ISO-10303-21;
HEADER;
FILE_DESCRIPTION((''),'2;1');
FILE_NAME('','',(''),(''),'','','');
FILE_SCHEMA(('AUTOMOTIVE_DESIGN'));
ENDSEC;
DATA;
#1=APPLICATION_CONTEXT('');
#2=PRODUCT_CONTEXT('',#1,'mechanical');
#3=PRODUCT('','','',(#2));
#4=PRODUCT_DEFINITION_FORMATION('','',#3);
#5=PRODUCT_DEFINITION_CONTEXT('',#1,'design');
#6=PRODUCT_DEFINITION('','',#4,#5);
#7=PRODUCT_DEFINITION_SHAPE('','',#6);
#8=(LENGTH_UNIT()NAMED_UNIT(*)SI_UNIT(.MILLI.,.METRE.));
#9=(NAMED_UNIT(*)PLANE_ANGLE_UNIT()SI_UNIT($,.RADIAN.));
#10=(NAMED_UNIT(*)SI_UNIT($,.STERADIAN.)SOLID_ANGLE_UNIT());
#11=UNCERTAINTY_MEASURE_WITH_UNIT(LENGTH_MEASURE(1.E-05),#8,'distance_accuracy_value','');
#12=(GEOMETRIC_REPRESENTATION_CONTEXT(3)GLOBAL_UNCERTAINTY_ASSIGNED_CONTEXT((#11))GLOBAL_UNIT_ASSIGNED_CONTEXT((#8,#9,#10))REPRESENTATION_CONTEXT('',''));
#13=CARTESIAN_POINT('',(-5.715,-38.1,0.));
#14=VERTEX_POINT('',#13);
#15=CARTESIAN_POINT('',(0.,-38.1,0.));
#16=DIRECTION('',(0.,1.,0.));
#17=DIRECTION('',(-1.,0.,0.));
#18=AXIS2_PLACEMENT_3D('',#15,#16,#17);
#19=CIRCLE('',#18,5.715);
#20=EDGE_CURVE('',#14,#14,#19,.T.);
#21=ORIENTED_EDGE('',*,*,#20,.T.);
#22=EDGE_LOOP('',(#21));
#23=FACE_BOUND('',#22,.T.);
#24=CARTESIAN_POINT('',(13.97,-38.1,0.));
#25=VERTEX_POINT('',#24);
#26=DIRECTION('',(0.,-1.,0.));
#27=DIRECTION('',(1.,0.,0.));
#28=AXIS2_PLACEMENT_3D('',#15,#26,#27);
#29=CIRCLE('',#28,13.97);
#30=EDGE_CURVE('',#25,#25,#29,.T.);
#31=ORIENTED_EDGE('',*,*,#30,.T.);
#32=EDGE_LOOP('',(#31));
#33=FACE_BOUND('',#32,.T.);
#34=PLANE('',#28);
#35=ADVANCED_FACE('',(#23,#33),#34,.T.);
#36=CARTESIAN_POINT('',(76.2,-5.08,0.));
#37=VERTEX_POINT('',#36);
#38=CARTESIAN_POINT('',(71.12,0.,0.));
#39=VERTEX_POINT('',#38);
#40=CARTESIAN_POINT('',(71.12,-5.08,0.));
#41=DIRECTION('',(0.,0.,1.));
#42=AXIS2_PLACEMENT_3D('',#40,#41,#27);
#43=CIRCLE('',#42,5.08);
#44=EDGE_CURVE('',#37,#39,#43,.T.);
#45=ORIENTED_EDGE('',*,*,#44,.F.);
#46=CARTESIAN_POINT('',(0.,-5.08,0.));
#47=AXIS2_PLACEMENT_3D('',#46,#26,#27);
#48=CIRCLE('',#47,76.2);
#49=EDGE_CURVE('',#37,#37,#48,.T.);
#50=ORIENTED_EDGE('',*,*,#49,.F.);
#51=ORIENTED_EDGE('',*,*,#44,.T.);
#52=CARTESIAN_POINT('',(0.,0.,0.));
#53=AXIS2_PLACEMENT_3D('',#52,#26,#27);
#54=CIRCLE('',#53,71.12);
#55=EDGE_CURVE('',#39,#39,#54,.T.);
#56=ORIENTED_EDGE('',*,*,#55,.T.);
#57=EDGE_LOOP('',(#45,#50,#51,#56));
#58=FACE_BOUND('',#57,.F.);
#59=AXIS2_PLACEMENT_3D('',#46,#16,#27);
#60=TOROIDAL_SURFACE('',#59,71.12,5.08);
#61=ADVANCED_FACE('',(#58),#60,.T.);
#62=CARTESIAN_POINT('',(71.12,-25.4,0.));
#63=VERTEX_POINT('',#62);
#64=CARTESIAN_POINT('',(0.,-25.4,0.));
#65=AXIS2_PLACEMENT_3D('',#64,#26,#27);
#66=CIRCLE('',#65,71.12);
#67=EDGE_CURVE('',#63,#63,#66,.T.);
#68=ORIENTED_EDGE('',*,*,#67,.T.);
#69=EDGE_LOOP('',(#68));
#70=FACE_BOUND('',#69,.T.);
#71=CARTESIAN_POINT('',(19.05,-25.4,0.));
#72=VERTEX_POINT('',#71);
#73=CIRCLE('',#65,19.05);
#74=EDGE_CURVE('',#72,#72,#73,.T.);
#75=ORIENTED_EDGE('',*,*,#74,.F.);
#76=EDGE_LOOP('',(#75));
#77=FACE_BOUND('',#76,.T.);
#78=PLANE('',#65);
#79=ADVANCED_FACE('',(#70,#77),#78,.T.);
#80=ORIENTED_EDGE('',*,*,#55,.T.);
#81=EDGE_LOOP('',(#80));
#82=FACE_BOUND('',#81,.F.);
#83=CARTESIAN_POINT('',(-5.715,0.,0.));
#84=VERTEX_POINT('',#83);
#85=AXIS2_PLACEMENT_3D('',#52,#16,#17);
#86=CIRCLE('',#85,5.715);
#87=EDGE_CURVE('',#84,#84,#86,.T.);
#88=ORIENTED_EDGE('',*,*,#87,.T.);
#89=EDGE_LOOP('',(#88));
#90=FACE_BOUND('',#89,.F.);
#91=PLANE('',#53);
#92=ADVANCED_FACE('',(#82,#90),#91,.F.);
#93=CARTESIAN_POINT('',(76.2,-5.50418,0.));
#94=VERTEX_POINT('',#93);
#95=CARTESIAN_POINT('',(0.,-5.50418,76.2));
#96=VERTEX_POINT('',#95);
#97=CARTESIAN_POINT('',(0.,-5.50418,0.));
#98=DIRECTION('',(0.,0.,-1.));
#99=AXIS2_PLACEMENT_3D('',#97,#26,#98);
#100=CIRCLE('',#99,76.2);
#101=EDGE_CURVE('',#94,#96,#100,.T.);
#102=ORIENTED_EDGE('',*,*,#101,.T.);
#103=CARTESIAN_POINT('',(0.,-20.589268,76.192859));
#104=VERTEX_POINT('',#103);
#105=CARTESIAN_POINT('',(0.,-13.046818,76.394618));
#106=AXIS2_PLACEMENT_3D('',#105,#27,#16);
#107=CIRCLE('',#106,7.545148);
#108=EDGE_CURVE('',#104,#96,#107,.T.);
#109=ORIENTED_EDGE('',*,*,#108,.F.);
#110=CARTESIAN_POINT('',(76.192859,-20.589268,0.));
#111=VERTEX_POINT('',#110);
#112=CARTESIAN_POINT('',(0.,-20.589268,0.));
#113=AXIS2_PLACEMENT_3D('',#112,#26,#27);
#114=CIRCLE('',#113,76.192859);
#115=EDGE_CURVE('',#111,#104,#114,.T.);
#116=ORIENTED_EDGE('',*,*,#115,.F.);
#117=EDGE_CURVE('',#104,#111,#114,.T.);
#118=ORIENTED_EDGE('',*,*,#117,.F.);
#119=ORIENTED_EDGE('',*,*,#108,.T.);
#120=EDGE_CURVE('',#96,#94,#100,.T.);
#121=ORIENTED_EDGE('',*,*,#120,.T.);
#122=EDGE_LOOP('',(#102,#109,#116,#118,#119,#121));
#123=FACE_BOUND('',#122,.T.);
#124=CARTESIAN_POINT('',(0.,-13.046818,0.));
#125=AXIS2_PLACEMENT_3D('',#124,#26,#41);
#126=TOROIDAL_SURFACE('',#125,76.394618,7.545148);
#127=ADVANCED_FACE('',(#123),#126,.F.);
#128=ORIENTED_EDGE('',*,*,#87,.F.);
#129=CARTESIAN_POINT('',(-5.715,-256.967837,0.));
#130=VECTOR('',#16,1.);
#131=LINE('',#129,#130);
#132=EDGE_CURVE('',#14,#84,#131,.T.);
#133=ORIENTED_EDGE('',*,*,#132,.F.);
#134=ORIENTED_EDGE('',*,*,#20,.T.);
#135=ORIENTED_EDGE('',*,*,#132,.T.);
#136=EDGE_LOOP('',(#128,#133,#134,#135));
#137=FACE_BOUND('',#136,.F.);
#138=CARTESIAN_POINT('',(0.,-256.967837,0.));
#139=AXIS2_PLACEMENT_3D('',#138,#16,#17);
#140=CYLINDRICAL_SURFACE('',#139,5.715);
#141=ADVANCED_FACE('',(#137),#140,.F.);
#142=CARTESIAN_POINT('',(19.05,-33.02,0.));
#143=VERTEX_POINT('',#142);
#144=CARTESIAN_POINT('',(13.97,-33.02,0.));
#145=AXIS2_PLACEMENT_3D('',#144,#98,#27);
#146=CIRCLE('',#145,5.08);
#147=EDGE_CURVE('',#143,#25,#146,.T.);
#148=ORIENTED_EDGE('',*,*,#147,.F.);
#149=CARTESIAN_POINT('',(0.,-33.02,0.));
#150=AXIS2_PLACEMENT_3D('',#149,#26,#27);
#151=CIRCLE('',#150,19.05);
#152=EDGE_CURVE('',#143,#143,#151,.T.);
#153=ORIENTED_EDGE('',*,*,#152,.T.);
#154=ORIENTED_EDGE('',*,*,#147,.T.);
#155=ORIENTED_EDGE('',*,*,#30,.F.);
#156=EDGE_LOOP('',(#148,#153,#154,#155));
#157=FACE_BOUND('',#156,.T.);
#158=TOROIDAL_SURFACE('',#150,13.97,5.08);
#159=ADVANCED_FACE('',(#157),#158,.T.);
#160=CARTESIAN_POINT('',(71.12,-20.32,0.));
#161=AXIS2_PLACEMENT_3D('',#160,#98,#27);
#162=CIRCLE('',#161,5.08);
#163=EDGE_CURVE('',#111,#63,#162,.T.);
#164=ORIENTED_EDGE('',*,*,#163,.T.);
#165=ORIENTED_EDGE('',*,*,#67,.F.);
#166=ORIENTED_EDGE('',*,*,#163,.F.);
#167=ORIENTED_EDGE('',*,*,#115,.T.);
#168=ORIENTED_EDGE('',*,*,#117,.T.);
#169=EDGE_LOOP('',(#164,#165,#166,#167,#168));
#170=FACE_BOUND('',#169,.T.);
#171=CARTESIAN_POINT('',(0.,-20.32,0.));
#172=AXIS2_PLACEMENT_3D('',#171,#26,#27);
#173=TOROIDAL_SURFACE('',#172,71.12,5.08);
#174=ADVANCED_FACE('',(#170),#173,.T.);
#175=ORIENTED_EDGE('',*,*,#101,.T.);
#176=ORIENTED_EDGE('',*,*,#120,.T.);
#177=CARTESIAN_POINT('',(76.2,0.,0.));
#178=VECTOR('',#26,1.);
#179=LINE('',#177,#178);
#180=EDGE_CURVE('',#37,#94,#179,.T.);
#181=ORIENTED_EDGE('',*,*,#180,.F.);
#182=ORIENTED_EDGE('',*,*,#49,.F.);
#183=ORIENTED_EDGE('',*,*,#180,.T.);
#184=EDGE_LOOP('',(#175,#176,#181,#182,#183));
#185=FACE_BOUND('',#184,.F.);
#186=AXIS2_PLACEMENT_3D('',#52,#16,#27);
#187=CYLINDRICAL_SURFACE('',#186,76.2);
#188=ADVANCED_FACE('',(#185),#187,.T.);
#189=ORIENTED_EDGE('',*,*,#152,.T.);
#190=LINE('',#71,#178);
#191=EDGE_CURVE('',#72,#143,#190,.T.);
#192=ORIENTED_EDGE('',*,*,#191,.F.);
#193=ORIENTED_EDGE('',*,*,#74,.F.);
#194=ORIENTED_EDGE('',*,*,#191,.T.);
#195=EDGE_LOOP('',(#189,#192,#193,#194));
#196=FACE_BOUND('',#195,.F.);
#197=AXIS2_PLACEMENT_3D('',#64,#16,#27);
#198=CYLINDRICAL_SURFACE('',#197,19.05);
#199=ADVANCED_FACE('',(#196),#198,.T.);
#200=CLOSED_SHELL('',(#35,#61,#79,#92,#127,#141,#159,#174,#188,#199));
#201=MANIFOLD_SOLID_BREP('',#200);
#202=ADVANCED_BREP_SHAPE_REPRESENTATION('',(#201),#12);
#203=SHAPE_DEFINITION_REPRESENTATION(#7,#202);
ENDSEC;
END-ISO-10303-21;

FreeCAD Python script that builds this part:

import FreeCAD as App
import Part
import Sketcher

V = App.Vector
Q = App.Units.Quantity


def edges_at(feature, points):
    """Names of the edges that pass closest to the given points."""
    edges = feature.Shape.Edges
    near = lambda p: min(range(len(edges)), key=lambda i: edges[i].distToShape(Part.Vertex(*p))[0])
    return sorted({f"Edge{near(p) + 1}" for p in points})

doc = App.newDocument("Part")
params = doc.addObject("Spreadsheet::Sheet", "Params")
for row, (alias, value) in enumerate([
    ("sketch1_diameter", "6 in"),
    ("pad1_length", "1 in"),
    ("sketch2_diameter", "1.5 in"),
    ("pad2_length", "0.5 in"),
    ("sketch3_diameter", "0.45 in"),
    ("hole_diameter", "0.45 in"),
    ("fillet_radius", "0.2 in"),
    ("groove_angle", "360 deg"),
], start=1):
    params.set(f"A{row}", alias)
    params.set(f"B{row}", "=" + value)
    params.setAlias(f"B{row}", alias)

body = doc.addObject("PartDesign::Body", "Body")

# Sketch on XZ plane
sketch1 = body.newObject("Sketcher::SketchObject", "Sketch")
sketch1.AttachmentSupport = (doc.getObject("XZ_Plane"), [""])
sketch1.MapMode = "FlatFace"
sketch1.addGeometry(Part.Circle(V(0, 0, 0), V(0, 0, 1), 76), False)
sketch1.addConstraint(Sketcher.Constraint("Coincident", 0, 3, -1, 1))
sketch1.addConstraint(Sketcher.Constraint("Diameter", 0, Q("6 in")))
sketch1.setExpression("Constraints[1]", "Params.sketch1_diameter")
pad1 = body.newObject("PartDesign::Pad", "Pad")
pad1.Profile = sketch1
pad1.setExpression("Length", "Params.pad1_length")

# Sketch on XZ plane
sketch2 = body.newObject("Sketcher::SketchObject", "Sketch001")
sketch2.AttachmentSupport = (doc.getObject("XZ_Plane"), [""])
sketch2.MapMode = "FlatFace"
sketch2.AttachmentOffset = App.Placement(V(0, 0, 1 * 25.4), App.Rotation())
sketch2.addGeometry(Part.Circle(V(0, 0, 0), V(0, 0, 1), 19), False)
sketch2.addConstraint(Sketcher.Constraint("Coincident", 0, 3, -1, 1))
sketch2.addConstraint(Sketcher.Constraint("Diameter", 0, Q("1.5 in")))
sketch2.setExpression("Constraints[1]", "Params.sketch2_diameter")
pad2 = body.newObject("PartDesign::Pad", "Pad001")
pad2.Profile = sketch2
pad2.setExpression("Length", "Params.pad2_length")

# Sketch on XZ plane
sketch3 = body.newObject("Sketcher::SketchObject", "Sketch002")
sketch3.AttachmentSupport = (doc.getObject("XZ_Plane"), [""])
sketch3.MapMode = "FlatFace"
sketch3.AttachmentOffset = App.Placement(V(0, 0, 1.5 * 25.4), App.Rotation())
sketch3.addGeometry(Part.Circle(V(0, 0, 0), V(0, 0, 1), 6), False)
sketch3.addConstraint(Sketcher.Constraint("Coincident", 0, 3, -1, 1))
sketch3.addConstraint(Sketcher.Constraint("Diameter", 0, Q("0.45 in")))
sketch3.setExpression("Constraints[1]", "Params.sketch3_diameter")
doc.recompute()
hole = body.newObject("PartDesign::Hole", "Hole")
hole.Profile = sketch3
hole.ThreadType = "None"
hole.setExpression("Diameter", "Params.hole_diameter")
hole.DepthType = "ThroughAll"
doc.recompute()

fillet = body.newObject("PartDesign::Fillet", "Fillet")
fillet.Base = (hole, edges_at(hole, [
    (-76.2, -25.4, 0),
    (76.2, -12.7, 0),
    (-76.2, 0, 0),
    (-19.05, -38.1, 0),
]))
fillet.setExpression("Radius", "Params.fillet_radius")

# Sketch on YZ plane
sketch4 = body.newObject("Sketcher::SketchObject", "Sketch003")
sketch4.AttachmentSupport = (doc.getObject("YZ_Plane"), [""])
sketch4.MapMode = "FlatFace"
sketch4.addGeometry(Part.Circle(V(-13, 76, 0), V(0, 0, 1), 8), False)
sketch4.addConstraint(Sketcher.Constraint("Diameter", 0, Q("15.090296 mm")))
sketch4.addConstraint(Sketcher.Constraint("DistanceX", 0, 3, -1, 1, Q("13.046818 mm")))
sketch4.addConstraint(Sketcher.Constraint("DistanceY", -1, 1, 0, 3, Q("76.394618 mm")))
groove = body.newObject("PartDesign::Groove", "Groove")
groove.Profile = sketch4
groove.ReferenceAxis = (sketch4, ["H_Axis"])
groove.setExpression("Angle", "Params.groove_angle")

doc.recompute()
